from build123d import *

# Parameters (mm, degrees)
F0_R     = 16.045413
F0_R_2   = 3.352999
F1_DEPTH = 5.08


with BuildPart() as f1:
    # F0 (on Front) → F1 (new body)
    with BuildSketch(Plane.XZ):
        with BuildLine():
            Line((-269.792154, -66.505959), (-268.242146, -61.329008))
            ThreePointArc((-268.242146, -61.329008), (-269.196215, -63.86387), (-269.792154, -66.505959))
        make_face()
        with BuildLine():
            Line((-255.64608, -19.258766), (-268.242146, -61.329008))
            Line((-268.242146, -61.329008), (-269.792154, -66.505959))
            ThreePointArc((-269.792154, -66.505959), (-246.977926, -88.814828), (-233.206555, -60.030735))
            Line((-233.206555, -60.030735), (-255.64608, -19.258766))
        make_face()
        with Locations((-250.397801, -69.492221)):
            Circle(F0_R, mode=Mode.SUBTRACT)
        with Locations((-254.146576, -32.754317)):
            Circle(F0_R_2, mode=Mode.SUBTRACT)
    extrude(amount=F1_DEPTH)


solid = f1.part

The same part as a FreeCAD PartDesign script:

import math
import FreeCAD as App
import Part
import Sketcher
Q = App.Units.Quantity

doc = App.newDocument("Part")
body = doc.addObject("PartDesign::Body", "Body")

# Sketch on XZ plane
sketch1 = doc.addObject("Sketcher::SketchObject", "Sketch")
body.addObject(sketch1)
sketch1.AttachmentSupport = (doc.XZ_Plane, [""])
sketch1.MapMode = "FlatFace"
sketch1.addGeometry([
    Part.ArcOfCircle(Part.Circle(App.Vector(-250.4, -69.5, 0), App.Vector(0, 0, 1), 19.6), math.radians(155.42), math.radians(171.25)),  # 0
    Part.ArcOfCircle(Part.Circle(App.Vector(-250.4, -69.5, 0), App.Vector(0, 0, 1), 19.6), math.radians(171), math.radians(389)),  # 1
    Part.LineSegment(App.Vector(-233.2, -60, 0), App.Vector(-255.6, -19.3, 0)),  # 2
    Part.LineSegment(App.Vector(-255.6, -19.3, 0), App.Vector(-268.2, -61.3, 0)),  # 3
    Part.Circle(App.Vector(-250.4, -69.5, 0), App.Vector(0, 0, 1), 16),  # 4
    Part.Circle(App.Vector(-254.1, -32.8, 0), App.Vector(0, 0, 1), 3.4),  # 5
], False)
sketch1.addConstraint([
    Sketcher.Constraint("Tangent", 0, 2, 1, 1),
    Sketcher.Constraint("Tangent", 1, 2, 2, 1),
    Sketcher.Constraint("Coincident", 2, 2, 3, 1),
    Sketcher.Constraint("Coincident", 3, 2, 0, 1),
    Sketcher.Constraint("Coincident", 4, 3, 1, 3),
    Sketcher.Constraint("Radius", 0, 19.622881),
    Sketcher.Constraint("Diameter", 4, 32.090826),
    Sketcher.Constraint("Diameter", 5, 6.705998),
    Sketcher.Constraint("Radius", 1, 19.622912),
    Sketcher.Constraint("DistanceX", 1, 3, -1, 1, 250.397801),
    Sketcher.Constraint("DistanceX", 0, 2, 1, 2, 36.585599),
    Sketcher.Constraint("DistanceY", 0, 3, -1, 1, 69.492211),
    Sketcher.Constraint("DistanceY", 0, 2, -1, 1, 66.505959),
    Sketcher.Constraint("DistanceX", 2, 2, -1, 1, 255.64608),
    Sketcher.Constraint("DistanceY", 3, 2, -1, 1, 61.329008),
    Sketcher.Constraint("DistanceX", 0, 2, 5, 3, 15.645578),
    Sketcher.Constraint("DistanceY", 0, 2, 5, 3, 33.751642),
])
pad1 = doc.addObject("PartDesign::Pad", "Pad")
body.addObject(pad1)
pad1.Profile = sketch1
pad1.Length = Q("0.2 in")

doc.recompute()
